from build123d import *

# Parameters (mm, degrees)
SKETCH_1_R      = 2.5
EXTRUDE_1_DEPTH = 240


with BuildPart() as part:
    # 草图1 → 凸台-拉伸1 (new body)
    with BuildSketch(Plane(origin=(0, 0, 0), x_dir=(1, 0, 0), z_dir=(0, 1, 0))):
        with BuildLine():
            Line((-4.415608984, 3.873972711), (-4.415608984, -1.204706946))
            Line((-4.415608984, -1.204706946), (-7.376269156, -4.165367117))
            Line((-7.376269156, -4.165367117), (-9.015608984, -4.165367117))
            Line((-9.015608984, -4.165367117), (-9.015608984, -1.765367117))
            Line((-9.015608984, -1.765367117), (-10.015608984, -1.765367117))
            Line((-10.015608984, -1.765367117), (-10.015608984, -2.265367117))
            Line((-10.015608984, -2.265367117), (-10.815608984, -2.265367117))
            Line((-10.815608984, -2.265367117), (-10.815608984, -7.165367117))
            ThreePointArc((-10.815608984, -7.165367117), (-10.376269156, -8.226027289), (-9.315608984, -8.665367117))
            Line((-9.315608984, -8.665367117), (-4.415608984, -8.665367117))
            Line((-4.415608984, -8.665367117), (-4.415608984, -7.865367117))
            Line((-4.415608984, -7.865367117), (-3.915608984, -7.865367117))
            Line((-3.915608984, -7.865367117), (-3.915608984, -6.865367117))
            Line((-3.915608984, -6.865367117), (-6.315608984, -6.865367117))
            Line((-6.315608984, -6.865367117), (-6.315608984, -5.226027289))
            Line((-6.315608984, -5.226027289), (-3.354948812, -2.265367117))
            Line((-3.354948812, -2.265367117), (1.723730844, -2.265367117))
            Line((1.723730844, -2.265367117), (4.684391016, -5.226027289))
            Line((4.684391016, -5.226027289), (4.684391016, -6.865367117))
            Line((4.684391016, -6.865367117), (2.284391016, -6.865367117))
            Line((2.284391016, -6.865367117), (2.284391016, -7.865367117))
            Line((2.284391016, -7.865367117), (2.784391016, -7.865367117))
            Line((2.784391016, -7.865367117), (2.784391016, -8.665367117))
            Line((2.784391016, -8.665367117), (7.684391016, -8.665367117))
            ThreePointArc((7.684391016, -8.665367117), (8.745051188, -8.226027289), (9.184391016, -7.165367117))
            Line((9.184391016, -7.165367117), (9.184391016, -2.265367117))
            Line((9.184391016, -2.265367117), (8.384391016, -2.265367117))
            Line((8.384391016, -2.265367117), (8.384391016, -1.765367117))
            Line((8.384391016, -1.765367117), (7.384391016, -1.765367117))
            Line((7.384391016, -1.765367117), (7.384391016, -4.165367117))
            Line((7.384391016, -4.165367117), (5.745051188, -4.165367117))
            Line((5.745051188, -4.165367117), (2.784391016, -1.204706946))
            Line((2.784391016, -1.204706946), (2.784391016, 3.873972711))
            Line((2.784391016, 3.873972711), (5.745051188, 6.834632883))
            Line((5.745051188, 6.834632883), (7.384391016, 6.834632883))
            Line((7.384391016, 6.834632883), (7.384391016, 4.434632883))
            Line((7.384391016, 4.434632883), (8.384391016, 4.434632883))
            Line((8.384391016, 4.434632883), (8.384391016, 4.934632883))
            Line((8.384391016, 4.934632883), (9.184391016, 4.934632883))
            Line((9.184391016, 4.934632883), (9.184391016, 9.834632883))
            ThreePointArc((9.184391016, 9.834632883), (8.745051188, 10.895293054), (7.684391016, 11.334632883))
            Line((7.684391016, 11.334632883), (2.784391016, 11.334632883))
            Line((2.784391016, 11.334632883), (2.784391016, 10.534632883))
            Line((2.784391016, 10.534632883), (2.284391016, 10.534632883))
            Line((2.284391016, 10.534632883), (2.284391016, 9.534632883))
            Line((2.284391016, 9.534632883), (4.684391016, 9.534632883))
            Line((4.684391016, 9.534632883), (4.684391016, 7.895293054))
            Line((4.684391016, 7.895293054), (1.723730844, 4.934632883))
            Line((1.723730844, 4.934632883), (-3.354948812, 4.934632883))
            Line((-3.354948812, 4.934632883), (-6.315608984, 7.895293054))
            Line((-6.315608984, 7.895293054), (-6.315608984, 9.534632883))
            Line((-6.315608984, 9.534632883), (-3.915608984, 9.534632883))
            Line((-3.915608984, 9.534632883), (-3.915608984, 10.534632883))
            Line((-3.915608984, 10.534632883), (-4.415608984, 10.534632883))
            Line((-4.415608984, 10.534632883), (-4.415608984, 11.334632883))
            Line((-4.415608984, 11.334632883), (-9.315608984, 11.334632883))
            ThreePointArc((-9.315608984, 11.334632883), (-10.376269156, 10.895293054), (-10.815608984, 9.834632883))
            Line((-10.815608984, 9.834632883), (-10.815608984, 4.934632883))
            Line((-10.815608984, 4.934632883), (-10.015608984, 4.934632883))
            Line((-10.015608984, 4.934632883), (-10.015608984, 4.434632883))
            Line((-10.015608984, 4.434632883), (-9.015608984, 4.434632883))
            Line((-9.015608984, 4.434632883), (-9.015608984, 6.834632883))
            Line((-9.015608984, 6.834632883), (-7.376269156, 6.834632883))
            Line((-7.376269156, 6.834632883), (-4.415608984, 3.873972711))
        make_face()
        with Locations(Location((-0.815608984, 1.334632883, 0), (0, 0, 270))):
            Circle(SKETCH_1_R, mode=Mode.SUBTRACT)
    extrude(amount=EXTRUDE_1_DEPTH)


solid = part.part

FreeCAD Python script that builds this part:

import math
import FreeCAD as App
import Part
import Sketcher

V = App.Vector

doc = App.newDocument("Part")
body = doc.addObject("PartDesign::Body", "Body")

sketch1 = body.newObject("Sketcher::SketchObject", "Sketch")
sketch1.AttachmentSupport = (doc.getObject("XZ_Plane"), [""])
sketch1.MapMode = "FlatFace"
sketch1.addGeometry([
    Part.LineSegment(V(-4.42, -3.87, 0), V(-4.42, 1.2, 0)),
    Part.LineSegment(V(-4.42, 1.2, 0), V(-7.38, 4.17, 0)),
    Part.LineSegment(V(-7.38, 4.17, 0), V(-9.02, 4.17, 0)),
    Part.LineSegment(V(-9.02, 4.17, 0), V(-9.02, 1.77, 0)),
    Part.LineSegment(V(-9.02, 1.77, 0), V(-10.02, 1.77, 0)),
    Part.LineSegment(V(-10.02, 1.77, 0), V(-10.02, 2.27, 0)),
    Part.LineSegment(V(-10.02, 2.27, 0), V(-10.82, 2.27, 0)),
    Part.LineSegment(V(-10.82, 2.27, 0), V(-10.82, 7.17, 0)),
    Part.ArcOfCircle(Part.Circle(V(-9.32, 7.17, 0), V(0, 0, 1), 1.5), math.radians(90), math.radians(180)),
    Part.LineSegment(V(-9.32, 8.67, 0), V(-4.42, 8.67, 0)),
    Part.LineSegment(V(-4.42, 8.67, 0), V(-4.42, 7.87, 0)),
    Part.LineSegment(V(-4.42, 7.87, 0), V(-3.92, 7.87, 0)),
    Part.LineSegment(V(-3.92, 7.87, 0), V(-3.92, 6.87, 0)),
    Part.LineSegment(V(-3.92, 6.87, 0), V(-6.32, 6.87, 0)),
    Part.LineSegment(V(-6.32, 6.87, 0), V(-6.32, 5.23, 0)),
    Part.LineSegment(V(-6.32, 5.23, 0), V(-3.35, 2.27, 0)),
    Part.LineSegment(V(-3.35, 2.27, 0), V(1.72, 2.27, 0)),
    Part.LineSegment(V(1.72, 2.27, 0), V(4.68, 5.23, 0)),
    Part.LineSegment(V(4.68, 5.23, 0), V(4.68, 6.87, 0)),
    Part.LineSegment(V(4.68, 6.87, 0), V(2.28, 6.87, 0)),
    Part.LineSegment(V(2.28, 6.87, 0), V(2.28, 7.87, 0)),
    Part.LineSegment(V(2.28, 7.87, 0), V(2.78, 7.87, 0)),
    Part.LineSegment(V(2.78, 7.87, 0), V(2.78, 8.67, 0)),
    Part.LineSegment(V(2.78, 8.67, 0), V(7.68, 8.67, 0)),
    Part.ArcOfCircle(Part.Circle(V(7.68, 7.17, 0), V(0, 0, 1), 1.5), math.radians(0), math.radians(90)),
    Part.LineSegment(V(9.18, 7.17, 0), V(9.18, 2.27, 0)),
    Part.LineSegment(V(9.18, 2.27, 0), V(8.38, 2.27, 0)),
    Part.LineSegment(V(8.38, 2.27, 0), V(8.38, 1.77, 0)),
    Part.LineSegment(V(8.38, 1.77, 0), V(7.38, 1.77, 0)),
    Part.LineSegment(V(7.38, 1.77, 0), V(7.38, 4.17, 0)),
    Part.LineSegment(V(7.38, 4.17, 0), V(5.75, 4.17, 0)),
    Part.LineSegment(V(5.75, 4.17, 0), V(2.78, 1.2, 0)),
    Part.LineSegment(V(2.78, 1.2, 0), V(2.78, -3.87, 0)),
    Part.LineSegment(V(2.78, -3.87, 0), V(5.75, -6.83, 0)),
    Part.LineSegment(V(5.75, -6.83, 0), V(7.38, -6.83, 0)),
    Part.LineSegment(V(7.38, -6.83, 0), V(7.38, -4.43, 0)),
    Part.LineSegment(V(7.38, -4.43, 0), V(8.38, -4.43, 0)),
    Part.LineSegment(V(8.38, -4.43, 0), V(8.38, -4.93, 0)),
    Part.LineSegment(V(8.38, -4.93, 0), V(9.18, -4.93, 0)),
    Part.LineSegment(V(9.18, -4.93, 0), V(9.18, -9.83, 0)),
    Part.ArcOfCircle(Part.Circle(V(7.68, -9.83, 0), V(0, 0, 1), 1.5), math.radians(-90), math.radians(0)),
    Part.LineSegment(V(7.68, -11.33, 0), V(2.78, -11.33, 0)),
    Part.LineSegment(V(2.78, -11.33, 0), V(2.78, -10.53, 0)),
    Part.LineSegment(V(2.78, -10.53, 0), V(2.28, -10.53, 0)),
    Part.LineSegment(V(2.28, -10.53, 0), V(2.28, -9.53, 0)),
    Part.LineSegment(V(2.28, -9.53, 0), V(4.68, -9.53, 0)),
    Part.LineSegment(V(4.68, -9.53, 0), V(4.68, -7.9, 0)),
    Part.LineSegment(V(4.68, -7.9, 0), V(1.72, -4.93, 0)),
    Part.LineSegment(V(1.72, -4.93, 0), V(-3.35, -4.93, 0)),
    Part.LineSegment(V(-3.35, -4.93, 0), V(-6.32, -7.9, 0)),
    Part.LineSegment(V(-6.32, -7.9, 0), V(-6.32, -9.53, 0)),
    Part.LineSegment(V(-6.32, -9.53, 0), V(-3.92, -9.53, 0)),
    Part.LineSegment(V(-3.92, -9.53, 0), V(-3.92, -10.53, 0)),
    Part.LineSegment(V(-3.92, -10.53, 0), V(-4.42, -10.53, 0)),
    Part.LineSegment(V(-4.42, -10.53, 0), V(-4.42, -11.33, 0)),
    Part.LineSegment(V(-4.42, -11.33, 0), V(-9.32, -11.33, 0)),
    Part.ArcOfCircle(Part.Circle(V(-9.32, -9.83, 0), V(0, 0, 1), 1.5), math.radians(-180), math.radians(-90)),
    Part.LineSegment(V(-10.82, -9.83, 0), V(-10.82, -4.93, 0)),
    Part.LineSegment(V(-10.82, -4.93, 0), V(-10.02, -4.93, 0)),
    Part.LineSegment(V(-10.02, -4.93, 0), V(-10.02, -4.43, 0)),
    Part.LineSegment(V(-10.02, -4.43, 0), V(-9.02, -4.43, 0)),
    Part.LineSegment(V(-9.02, -4.43, 0), V(-9.02, -6.83, 0)),
    Part.LineSegment(V(-9.02, -6.83, 0), V(-7.38, -6.83, 0)),
    Part.LineSegment(V(-7.38, -6.83, 0), V(-4.42, -3.87, 0)),
    Part.Circle(V(-0.82, -1.33, 0), V(0, 0, 1), 2.5),
], False)
sketch1.addConstraint([
    Sketcher.Constraint("Coincident", 0, 2, 1, 1),
    Sketcher.Constraint("Coincident", 1, 2, 2, 1),
    Sketcher.Constraint("Coincident", 2, 2, 3, 1),
    Sketcher.Constraint("Coincident", 3, 2, 4, 1),
    Sketcher.Constraint("Coincident", 4, 2, 5, 1),
    Sketcher.Constraint("Coincident", 5, 2, 6, 1),
    Sketcher.Constraint("Coincident", 6, 2, 7, 1),
    Sketcher.Constraint("Tangent", 7, 2, 8, 2),
    Sketcher.Constraint("Tangent", 8, 1, 9, 1),
    Sketcher.Constraint("Coincident", 9, 2, 10, 1),
    Sketcher.Constraint("Coincident", 10, 2, 11, 1),
    Sketcher.Constraint("Coincident", 11, 2, 12, 1),
    Sketcher.Constraint("Coincident", 12, 2, 13, 1),
    Sketcher.Constraint("Coincident", 13, 2, 14, 1),
    Sketcher.Constraint("Coincident", 14, 2, 15, 1),
    Sketcher.Constraint("Coincident", 15, 2, 16, 1),
    Sketcher.Constraint("Coincident", 16, 2, 17, 1),
    Sketcher.Constraint("Coincident", 17, 2, 18, 1),
    Sketcher.Constraint("Coincident", 18, 2, 19, 1),
    Sketcher.Constraint("Coincident", 19, 2, 20, 1),
    Sketcher.Constraint("Coincident", 20, 2, 21, 1),
    Sketcher.Constraint("Coincident", 21, 2, 22, 1),
    Sketcher.Constraint("Coincident", 22, 2, 23, 1),
    Sketcher.Constraint("Tangent", 23, 2, 24, 2),
    Sketcher.Constraint("Tangent", 24, 1, 25, 1),
    Sketcher.Constraint("Coincident", 25, 2, 26, 1),
    Sketcher.Constraint("Coincident", 26, 2, 27, 1),
    Sketcher.Constraint("Coincident", 27, 2, 28, 1),
    Sketcher.Constraint("Coincident", 28, 2, 29, 1),
    Sketcher.Constraint("Coincident", 29, 2, 30, 1),
    Sketcher.Constraint("Coincident", 30, 2, 31, 1),
    Sketcher.Constraint("Coincident", 31, 2, 32, 1),
    Sketcher.Constraint("Coincident", 32, 2, 33, 1),
    Sketcher.Constraint("Coincident", 33, 2, 34, 1),
    Sketcher.Constraint("Coincident", 34, 2, 35, 1),
    Sketcher.Constraint("Coincident", 35, 2, 36, 1),
    Sketcher.Constraint("Coincident", 36, 2, 37, 1),
    Sketcher.Constraint("Coincident", 37, 2, 38, 1),
    Sketcher.Constraint("Coincident", 38, 2, 39, 1),
    Sketcher.Constraint("Tangent", 39, 2, 40, 2),
    Sketcher.Constraint("Tangent", 40, 1, 41, 1),
    Sketcher.Constraint("Coincident", 41, 2, 42, 1),
    Sketcher.Constraint("Coincident", 42, 2, 43, 1),
    Sketcher.Constraint("Coincident", 43, 2, 44, 1),
    Sketcher.Constraint("Coincident", 44, 2, 45, 1),
    Sketcher.Constraint("Coincident", 45, 2, 46, 1),
    Sketcher.Constraint("Coincident", 46, 2, 47, 1),
    Sketcher.Constraint("Coincident", 47, 2, 48, 1),
    Sketcher.Constraint("Coincident", 48, 2, 49, 1),
    Sketcher.Constraint("Coincident", 49, 2, 50, 1),
    Sketcher.Constraint("Coincident", 50, 2, 51, 1),
    Sketcher.Constraint("Coincident", 51, 2, 52, 1),
    Sketcher.Constraint("Coincident", 52, 2, 53, 1),
    Sketcher.Constraint("Coincident", 53, 2, 54, 1),
    Sketcher.Constraint("Coincident", 54, 2, 55, 1),
    Sketcher.Constraint("Tangent", 55, 2, 56, 2),
    Sketcher.Constraint("Tangent", 56, 1, 57, 1),
    Sketcher.Constraint("Coincident", 57, 2, 58, 1),
    Sketcher.Constraint("Coincident", 58, 2, 59, 1),
    Sketcher.Constraint("Coincident", 59, 2, 60, 1),
    Sketcher.Constraint("Coincident", 60, 2, 61, 1),
    Sketcher.Constraint("Coincident", 61, 2, 62, 1),
    Sketcher.Constraint("Coincident", 62, 2, 63, 1),
    Sketcher.Constraint("Coincident", 63, 2, 0, 1),
    Sketcher.Constraint("Vertical", 0),
    Sketcher.Constraint("Horizontal", 2),
    Sketcher.Constraint("Vertical", 3),
    Sketcher.Constraint("Horizontal", 4),
    Sketcher.Constraint("Vertical", 5),
    Sketcher.Constraint("Horizontal", 6),
    Sketcher.Constraint("Vertical", 7),
    Sketcher.Constraint("Horizontal", 9),
    Sketcher.Constraint("Vertical", 10),
    Sketcher.Constraint("Horizontal", 11),
    Sketcher.Constraint("Vertical", 12),
    Sketcher.Constraint("Horizontal", 13),
    Sketcher.Constraint("Vertical", 14),
    Sketcher.Constraint("Horizontal", 16),
    Sketcher.Constraint("Vertical", 18),
    Sketcher.Constraint("Horizontal", 19),
    Sketcher.Constraint("Vertical", 20),
    Sketcher.Constraint("Horizontal", 21),
    Sketcher.Constraint("Vertical", 22),
    Sketcher.Constraint("Horizontal", 23),
    Sketcher.Constraint("Vertical", 25),
    Sketcher.Constraint("Horizontal", 26),
    Sketcher.Constraint("Vertical", 27),
    Sketcher.Constraint("Horizontal", 28),
    Sketcher.Constraint("Vertical", 29),
    Sketcher.Constraint("Horizontal", 30),
    Sketcher.Constraint("Vertical", 32),
    Sketcher.Constraint("Horizontal", 34),
    Sketcher.Constraint("Vertical", 35),
    Sketcher.Constraint("Horizontal", 36),
    Sketcher.Constraint("Vertical", 37),
    Sketcher.Constraint("Horizontal", 38),
    Sketcher.Constraint("Vertical", 39),
    Sketcher.Constraint("Horizontal", 41),
    Sketcher.Constraint("Vertical", 42),
    Sketcher.Constraint("Horizontal", 43),
    Sketcher.Constraint("Vertical", 44),
    Sketcher.Constraint("Horizontal", 45),
    Sketcher.Constraint("Vertical", 46),
    Sketcher.Constraint("Horizontal", 48),
    Sketcher.Constraint("Vertical", 50),
    Sketcher.Constraint("Horizontal", 51),
    Sketcher.Constraint("Vertical", 52),
    Sketcher.Constraint("Horizontal", 53),
    Sketcher.Constraint("Vertical", 54),
    Sketcher.Constraint("Horizontal", 55),
    Sketcher.Constraint("Vertical", 57),
    Sketcher.Constraint("Horizontal", 58),
    Sketcher.Constraint("Vertical", 59),
    Sketcher.Constraint("Horizontal", 60),
    Sketcher.Constraint("Vertical", 61),
    Sketcher.Constraint("Horizontal", 62),
    Sketcher.Constraint("Equal", 8, 24),
    Sketcher.Constraint("Equal", 24, 40),
    Sketcher.Constraint("Equal", 40, 56),
    Sketcher.Constraint("Parallel", 1, 15),
    Sketcher.Constraint("Perpendicular", 15, 17),
    Sketcher.Constraint("Parallel", 17, 31),
    Sketcher.Constraint("Perpendicular", 31, 33),
    Sketcher.Constraint("Parallel", 33, 47),
    Sketcher.Constraint("Perpendicular", 47, 49),
    Sketcher.Constraint("Parallel", 49, 63),
    Sketcher.Constraint("Horizontal", 8, 3, 24, 3),
    Sketcher.Constraint("Horizontal", 40, 3, 56, 3),
    Sketcher.Constraint("Horizontal", 6, 2, 15, 2),
    Sketcher.Constraint("Horizontal", 14, 2, 17, 2),
    Sketcher.Constraint("Horizontal", 13, 2, 18, 2),
    Sketcher.Constraint("Horizontal", 11, 2, 20, 2),
    Sketcher.Constraint("Horizontal", 16, 2, 25, 2),
    Sketcher.Constraint("Horizontal", 4, 2, 27, 2),
    Sketcher.Constraint("Horizontal", 2, 2, 29, 2),
    Sketcher.Constraint("Horizontal", 0, 2, 31, 2),
    Sketcher.Constraint("Horizontal", 38, 2, 47, 2),
    Sketcher.Constraint("Horizontal", 46, 2, 49, 2),
    Sketcher.Constraint("Horizontal", 45, 2, 50, 2),
    Sketcher.Constraint("Horizontal", 43, 2, 52, 2),
    Sketcher.Constraint("Horizontal", 48, 2, 57, 2),
    Sketcher.Constraint("Horizontal", 36, 2, 59, 2),
    Sketcher.Constraint("Horizontal", 34, 2, 61, 2),
    Sketcher.Constraint("Horizontal", 32, 2, 63, 2),
    Sketcher.Constraint("Vertical", 24, 3, 40, 3),
    Sketcher.Constraint("Vertical", 8, 3, 56, 3),
    Sketcher.Constraint("Vertical", 0, 2, 9, 2),
    Sketcher.Constraint("Vertical", 22, 2, 31, 2),
    Sketcher.Constraint("Vertical", 30, 2, 33, 2),
    Sketcher.Constraint("Vertical", 29, 2, 34, 2),
    Sketcher.Constraint("Vertical", 27, 2, 36, 2),
    Sketcher.Constraint("Vertical", 32, 2, 41, 2),
    Sketcher.Constraint("Vertical", 20, 2, 43, 2),
    Sketcher.Constraint("Vertical", 18, 2, 45, 2),
    Sketcher.Constraint("Vertical", 16, 2, 47, 2),
    Sketcher.Constraint("Vertical", 15, 2, 48, 2),
    Sketcher.Constraint("Vertical", 14, 2, 49, 2),
    Sketcher.Constraint("Vertical", 12, 2, 51, 2),
    Sketcher.Constraint("Vertical", 10, 2, 53, 2),
    Sketcher.Constraint("Vertical", 5, 2, 58, 2),
    Sketcher.Constraint("Vertical", 3, 2, 60, 2),
    Sketcher.Constraint("Equal", 13, 19),
    Sketcher.Constraint("Equal", 11, 21),
    Sketcher.Constraint("Equal", 9, 23),
    Sketcher.Constraint("Equal", 6, 26),
    Sketcher.Constraint("Equal", 4, 28),
    Sketcher.Constraint("Equal", 48, 0),
    Sketcher.Constraint("Equal", 51, 3),
    Sketcher.Constraint("Equal", 53, 5),
    Sketcher.Constraint("Equal", 55, 7),
    Sketcher.Constraint("Equal", 58, 10),
    Sketcher.Constraint("Equal", 60, 12),
    Sketcher.Constraint("Equal", 62, 14),
    Sketcher.Constraint("Equal", 29, 35),
    Sketcher.Constraint("Equal", 27, 37),
    Sketcher.Constraint("Equal", 25, 39),
    Sketcher.Constraint("Equal", 22, 42),
    Sketcher.Constraint("Equal", 20, 44),
    Sketcher.Constraint("Diameter", 64, 5.0),
    Sketcher.Constraint("Radius", 8, 1.5),
    Sketcher.Constraint("DistanceX", 4, 2, 4, 1, 1.0),
    Sketcher.Constraint("DistanceX", 6, 2, 6, 1, 0.8),
    Sketcher.Constraint("DistanceX", 9, 1, 9, 2, 4.9),
    Sketcher.Constraint("DistanceX", 11, 1, 11, 2, 0.5),
    Sketcher.Constraint("DistanceX", 13, 2, 13, 1, 2.4),
    Sketcher.Constraint("DistanceX", 2, 2, 2, 1, 1.63934),
    Sketcher.Constraint("DistanceX", 16, 1, 16, 2, 5.07868),
    Sketcher.Constraint("DistanceX", 8, 3, -1, 1, 9.315609),
    Sketcher.Constraint("DistanceX", 64, 3, -1, 1, 0.815609),
    Sketcher.Constraint("DistanceY", -1, 1, 8, 3, 7.165367),
    Sketcher.Constraint("DistanceY", 64, 3, -1, 1, 1.334633),
])
pad1 = body.newObject("PartDesign::Pad", "Pad")
pad1.Profile = sketch1
pad1.Length = 240
pad1.Reversed = True

doc.recompute()
